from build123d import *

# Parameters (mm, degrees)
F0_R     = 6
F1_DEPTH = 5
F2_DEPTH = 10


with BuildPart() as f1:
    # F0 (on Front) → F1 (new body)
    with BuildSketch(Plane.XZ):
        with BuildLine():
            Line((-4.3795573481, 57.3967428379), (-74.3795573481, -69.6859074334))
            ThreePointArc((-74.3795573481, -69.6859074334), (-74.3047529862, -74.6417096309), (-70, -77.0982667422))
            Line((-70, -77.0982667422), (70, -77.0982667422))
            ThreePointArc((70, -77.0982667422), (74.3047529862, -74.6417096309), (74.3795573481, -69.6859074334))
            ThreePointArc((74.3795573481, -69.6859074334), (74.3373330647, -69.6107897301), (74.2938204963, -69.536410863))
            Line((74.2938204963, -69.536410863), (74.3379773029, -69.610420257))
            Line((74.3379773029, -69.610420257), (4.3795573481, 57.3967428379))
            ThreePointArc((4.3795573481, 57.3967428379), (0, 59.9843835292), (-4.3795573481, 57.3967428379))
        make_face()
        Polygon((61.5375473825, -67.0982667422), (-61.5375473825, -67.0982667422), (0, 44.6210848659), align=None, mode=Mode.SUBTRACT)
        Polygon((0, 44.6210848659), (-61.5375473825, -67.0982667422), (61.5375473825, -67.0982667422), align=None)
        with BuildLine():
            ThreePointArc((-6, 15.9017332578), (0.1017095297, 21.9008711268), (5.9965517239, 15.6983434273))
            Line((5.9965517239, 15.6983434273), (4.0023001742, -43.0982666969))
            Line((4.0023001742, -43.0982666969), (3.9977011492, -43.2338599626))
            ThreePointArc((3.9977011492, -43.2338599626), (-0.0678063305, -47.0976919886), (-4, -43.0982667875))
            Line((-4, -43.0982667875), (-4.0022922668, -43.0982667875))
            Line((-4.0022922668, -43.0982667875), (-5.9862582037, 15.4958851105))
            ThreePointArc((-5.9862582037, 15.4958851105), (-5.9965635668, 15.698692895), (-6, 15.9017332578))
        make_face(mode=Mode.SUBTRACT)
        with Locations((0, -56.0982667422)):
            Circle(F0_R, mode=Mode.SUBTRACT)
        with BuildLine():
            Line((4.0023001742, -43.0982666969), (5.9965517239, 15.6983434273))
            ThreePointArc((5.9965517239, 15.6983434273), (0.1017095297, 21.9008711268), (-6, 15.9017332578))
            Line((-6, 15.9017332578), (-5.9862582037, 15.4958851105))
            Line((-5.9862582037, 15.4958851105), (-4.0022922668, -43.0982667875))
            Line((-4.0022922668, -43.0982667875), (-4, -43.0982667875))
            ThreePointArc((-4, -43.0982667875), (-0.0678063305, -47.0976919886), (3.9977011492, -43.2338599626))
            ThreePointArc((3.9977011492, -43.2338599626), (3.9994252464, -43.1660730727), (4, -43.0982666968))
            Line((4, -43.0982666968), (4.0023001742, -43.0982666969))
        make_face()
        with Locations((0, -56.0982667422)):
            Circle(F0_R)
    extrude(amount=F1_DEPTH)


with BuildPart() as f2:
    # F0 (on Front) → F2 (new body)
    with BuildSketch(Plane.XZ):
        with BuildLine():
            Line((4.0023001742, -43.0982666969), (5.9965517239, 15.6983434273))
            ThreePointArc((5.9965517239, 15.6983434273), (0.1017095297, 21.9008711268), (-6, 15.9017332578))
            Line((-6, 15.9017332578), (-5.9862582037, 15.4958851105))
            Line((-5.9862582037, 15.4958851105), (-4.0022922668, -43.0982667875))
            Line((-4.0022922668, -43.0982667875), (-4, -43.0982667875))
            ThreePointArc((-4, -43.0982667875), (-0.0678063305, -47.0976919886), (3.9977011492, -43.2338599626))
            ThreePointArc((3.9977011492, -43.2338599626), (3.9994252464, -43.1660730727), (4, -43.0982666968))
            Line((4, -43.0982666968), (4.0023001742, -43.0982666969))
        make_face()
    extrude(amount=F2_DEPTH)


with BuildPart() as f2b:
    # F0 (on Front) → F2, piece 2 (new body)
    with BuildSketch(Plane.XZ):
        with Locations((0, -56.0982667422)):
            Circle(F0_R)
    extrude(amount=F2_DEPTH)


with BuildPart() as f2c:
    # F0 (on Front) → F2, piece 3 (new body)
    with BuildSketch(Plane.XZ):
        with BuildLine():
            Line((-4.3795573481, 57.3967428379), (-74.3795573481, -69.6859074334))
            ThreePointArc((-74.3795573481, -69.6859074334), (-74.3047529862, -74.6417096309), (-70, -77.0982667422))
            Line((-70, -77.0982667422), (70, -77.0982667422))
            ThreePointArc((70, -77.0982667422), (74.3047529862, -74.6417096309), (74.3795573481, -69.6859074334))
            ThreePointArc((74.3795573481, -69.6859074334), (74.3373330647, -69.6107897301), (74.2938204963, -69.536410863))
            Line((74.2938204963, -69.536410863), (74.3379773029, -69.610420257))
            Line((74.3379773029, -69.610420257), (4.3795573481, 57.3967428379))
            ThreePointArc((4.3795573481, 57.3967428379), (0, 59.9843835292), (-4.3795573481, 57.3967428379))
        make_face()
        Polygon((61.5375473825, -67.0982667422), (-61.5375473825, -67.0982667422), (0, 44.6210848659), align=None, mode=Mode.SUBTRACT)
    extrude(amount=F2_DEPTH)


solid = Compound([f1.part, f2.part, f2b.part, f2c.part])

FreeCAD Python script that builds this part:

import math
import FreeCAD as App
import Part
import Sketcher

V = App.Vector
Q = App.Units.Quantity


def add_polygon(sketch, points):
    """Adds a closed chain of lines whose ends are joined by coincident constraints."""
    first, n = sketch.GeometryCount, len(points)
    for a, b in zip(points, points[1:] + points[:1]):
        sketch.addGeometry(Part.LineSegment(App.Vector(*a, 0), App.Vector(*b, 0)), False)
    for i in range(n):
        sketch.addConstraint(Sketcher.Constraint("Coincident", first + i, 2, first + (i + 1) % n, 1))

doc = App.newDocument("Part")
body = doc.addObject("PartDesign::Body", "Body")

# Sketch on XZ plane
sketch1 = body.newObject("Sketcher::SketchObject", "Sketch")
sketch1.AttachmentSupport = (doc.getObject("XZ_Plane"), [""])
sketch1.MapMode = "FlatFace"
sketch1.addGeometry([
    Part.LineSegment(V(-4.379557, 57.396743, 0), V(-74.379557, -69.685907, 0)),  # 0
    Part.ArcOfCircle(Part.Circle(V(-70, -72.098267, 0), V(0, 0, 1), 5), math.radians(151.153032), math.radians(270)),  # 1
    Part.LineSegment(V(-70, -77.098267, 0), V(70, -77.098267, 0)),  # 2
    Part.ArcOfCircle(Part.Circle(V(70, -72.098267, 0), V(0, 0, 1), 5), math.radians(-90), math.radians(28.846968)),  # 3
    Part.ArcOfCircle(Part.Circle(V(70, -72.098267, 0), V(0, 0, 1), 5), math.radians(28.846968), math.radians(30.821902)),  # 4
    Part.LineSegment(V(74.29382, -69.536411, 0), V(74.337977, -69.61042, 0)),  # 5
    Part.LineSegment(V(74.337977, -69.61042, 0), V(4.379557, 57.396743, 0)),  # 6
    Part.ArcOfCircle(Part.Circle(V(0, 54.984384, 0), V(0, 0, 1), 5), math.radians(28.846968), math.radians(151.153032)),  # 7
    Part.ArcOfCircle(Part.Circle(V(0, 15.901733, 0), V(0, 0, 1), 6), math.radians(-180), math.radians(-176.121474)),  # 8
    Part.LineSegment(V(-6, 15.901733, 0), V(-5.986258, 15.495885, 0)),  # 9
    Part.LineSegment(V(4.0023, -43.098267, 0), V(3.997701, -43.23386, 0)),  # 10
    Part.ArcOfCircle(Part.Circle(V(0, -43.098267, 0), V(0, 0, 1), 4), math.radians(-1.942602), math.radians(0.000001)),  # 11
    Part.LineSegment(V(4, -43.098267, 0), V(4.0023, -43.098267, 0)),  # 12
], False)
sketch1.addConstraint([
    Sketcher.Constraint("Tangent", 0, 2, 1, 1),
    Sketcher.Constraint("Tangent", 1, 2, 2, 1),
    Sketcher.Constraint("Tangent", 2, 2, 3, 1),
    Sketcher.Constraint("Tangent", 3, 2, 4, 1),
    Sketcher.Constraint("Tangent", 4, 2, 5, 1),
    Sketcher.Constraint("Coincident", 5, 2, 6, 1),
    Sketcher.Constraint("Tangent", 6, 2, 7, 1),
    Sketcher.Constraint("Tangent", 7, 2, 0, 1),
    Sketcher.Constraint("Coincident", 8, 1, 9, 1),
    Sketcher.Constraint("Coincident", 9, 2, 8, 2),
    Sketcher.Constraint("Tangent", 10, 2, 11, 1),
    Sketcher.Constraint("Coincident", 11, 2, 12, 1),
    Sketcher.Constraint("Coincident", 12, 2, 10, 1),
    Sketcher.Constraint("Horizontal", 2),
    Sketcher.Constraint("Horizontal", 12),
    Sketcher.Constraint("Equal", 1, 3),
    Sketcher.Constraint("Equal", 3, 4),
    Sketcher.Constraint("Equal", 4, 7),
    Sketcher.Constraint("Symmetric", 0, 2, 3, 2, -2),
    Sketcher.Constraint("PointOnObject", 7, 3, -2),
    Sketcher.Constraint("PointOnObject", 8, 3, -2),
    Sketcher.Constraint("PointOnObject", 11, 3, -2),
    Sketcher.Constraint("Radius", 1, Q("5 mm")),
    Sketcher.Constraint("Radius", 8, Q("6 mm")),
    Sketcher.Constraint("Radius", 11, Q("4 mm")),
    Sketcher.Constraint("DistanceX", 2, 1, 2, 2, Q("140 mm")),
    Sketcher.Constraint("Distance", 6, Q("145 mm")),
    Sketcher.Constraint("DistanceY", 4, 3, 8, 3, Q("88 mm")),
    Sketcher.Constraint("DistanceY", 11, 3, 8, 3, Q("59 mm")),
    Sketcher.Constraint("DistanceY", 11, 3, 8, 1, Q("59 mm")),
    Sketcher.Constraint("DistanceY", 11, 2, 8, 3, Q("59 mm")),
    Sketcher.Constraint("DistanceX", 12, 1, 12, 2, Q("0.0023 mm")),
    Sketcher.Constraint("DistanceY", 9, 2, 7, 3, Q("39.488498 mm")),
    Sketcher.Constraint("DistanceX", 9, 2, 7, 2, Q("1.606701 mm")),
    Sketcher.Constraint("Distance", 5, Q("0.086181 mm")),
    Sketcher.Constraint("DistanceY", 4, 2, -1, 1, Q("69.536411 mm")),
])
pad1 = body.newObject("PartDesign::Pad", "Pad")
pad1.Profile = sketch1
pad1.Length = 5
body2 = doc.addObject("PartDesign::Body", "Body001")

# Sketch on XZ plane
sketch2 = body2.newObject("Sketcher::SketchObject", "Sketch001")
sketch2.AttachmentSupport = (doc.getObject("XZ_Plane001"), [""])
sketch2.MapMode = "FlatFace"
sketch2.addGeometry([
    Part.LineSegment(V(4.0023, -43.098267, 0), V(5.996552, 15.698343, 0)),  # 0
    Part.ArcOfCircle(Part.Circle(V(0, 15.901733, 0), V(0, 0, 1), 6), math.radians(-1.942602), math.radians(180)),  # 1
    Part.LineSegment(V(-6, 15.901733, 0), V(-5.986258, 15.495885, 0)),  # 2
    Part.LineSegment(V(-5.986258, 15.495885, 0), V(-4.002292, -43.098267, 0)),  # 3
    Part.LineSegment(V(-4.002292, -43.098267, 0), V(-4, -43.098267, 0)),  # 4
    Part.ArcOfCircle(Part.Circle(V(0, -43.098267, 0), V(0, 0, 1), 4), math.radians(-179.999999), math.radians(-1.942602)),  # 5
    Part.ArcOfCircle(Part.Circle(V(0, -43.098267, 0), V(0, 0, 1), 4), math.radians(-1.942602), math.radians(0.000001)),  # 6
    Part.LineSegment(V(4, -43.098267, 0), V(4.0023, -43.098267, 0)),  # 7
], False)
sketch2.addConstraint([
    Sketcher.Constraint("Tangent", 0, 2, 1, 1),
    Sketcher.Constraint("Coincident", 1, 2, 2, 1),
    Sketcher.Constraint("Coincident", 2, 2, 3, 1),
    Sketcher.Constraint("Coincident", 3, 2, 4, 1),
    Sketcher.Constraint("Coincident", 4, 2, 5, 1),
    Sketcher.Constraint("Tangent", 5, 2, 6, 1),
    Sketcher.Constraint("Coincident", 6, 2, 7, 1),
    Sketcher.Constraint("Coincident", 7, 2, 0, 1),
    Sketcher.Constraint("Horizontal", 4),
    Sketcher.Constraint("Horizontal", 7),
    Sketcher.Constraint("Equal", 5, 6),
    Sketcher.Constraint("Symmetric", 4, 2, 6, 2, -2),
    Sketcher.Constraint("PointOnObject", 1, 3, -2),
    Sketcher.Constraint("Parallel", 2, 3),
    Sketcher.Constraint("Horizontal", 6, 3, 3, 2),
    Sketcher.Constraint("Radius", 1, Q("6 mm")),
    Sketcher.Constraint("Radius", 5, Q("4 mm")),
    Sketcher.Constraint("DistanceY", 5, 3, 1, 3, Q("59 mm")),
    Sketcher.Constraint("DistanceY", 5, 3, 1, 2, Q("59 mm")),
    Sketcher.Constraint("DistanceX", 7, 1, 7, 2, Q("0.0023 mm")),
    Sketcher.Constraint("DistanceX", -1, 1, 5, 2, Q("3.997701 mm")),
    Sketcher.Constraint("Distance", 2, Q("0.406081 mm")),
    Sketcher.Constraint("Distance", 3, Q("58.62773 mm")),
    Sketcher.Constraint("DistanceY", 5, 2, -1, 1, Q("43.23386 mm")),
])
pad2 = body2.newObject("PartDesign::Pad", "Pad001")
pad2.Profile = sketch2
pad2.Length = 10
body3 = doc.addObject("PartDesign::Body", "Body002")

# Sketch on XZ plane
sketch3 = body3.newObject("Sketcher::SketchObject", "Sketch002")
sketch3.AttachmentSupport = (doc.getObject("XZ_Plane002"), [""])
sketch3.MapMode = "FlatFace"
sketch3.addGeometry(Part.Circle(V(0, -56.098267, 0), V(0, 0, 1), 6), False)
sketch3.addConstraint([
    Sketcher.Constraint("PointOnObject", 0, 3, -2),
    Sketcher.Constraint("Diameter", 0, Q("12 mm")),
    Sketcher.Constraint("DistanceY", 0, 3, -1, 1, Q("56.098267 mm")),
])
pad3 = body3.newObject("PartDesign::Pad", "Pad002")
pad3.Profile = sketch3
pad3.Length = 10
body4 = doc.addObject("PartDesign::Body", "Body003")

# Sketch on XZ plane
sketch4 = body4.newObject("Sketcher::SketchObject", "Sketch003")
sketch4.AttachmentSupport = (doc.getObject("XZ_Plane003"), [""])
sketch4.MapMode = "FlatFace"
sketch4.addGeometry(Part.LineSegment(V(-4.379557, 57.396743, 0), V(-74.379557, -69.685907, 0)), False)  # 0
sketch4.addGeometry(Part.ArcOfCircle(Part.Circle(V(-70, -72.098267, 0), V(0, 0, 1), 5), math.radians(151.153032), math.radians(270)), False)  # 1
sketch4.addGeometry(Part.LineSegment(V(-70, -77.098267, 0), V(70, -77.098267, 0)), False)  # 2
sketch4.addGeometry(Part.ArcOfCircle(Part.Circle(V(70, -72.098267, 0), V(0, 0, 1), 5), math.radians(-90), math.radians(28.846968)), False)  # 3
sketch4.addGeometry(Part.ArcOfCircle(Part.Circle(V(70, -72.098267, 0), V(0, 0, 1), 5), math.radians(28.846968), math.radians(30.821902)), False)  # 4
sketch4.addGeometry(Part.LineSegment(V(74.29382, -69.536411, 0), V(74.337977, -69.61042, 0)), False)  # 5
sketch4.addGeometry(Part.LineSegment(V(74.337977, -69.61042, 0), V(4.379557, 57.396743, 0)), False)  # 6
sketch4.addGeometry(Part.ArcOfCircle(Part.Circle(V(0, 54.984384, 0), V(0, 0, 1), 5), math.radians(28.846968), math.radians(151.153032)), False)  # 7
add_polygon(sketch4, [(0, 44.621085), (61.537547, -67.098267), (-61.537547, -67.098267)])  # lines 8-10
sketch4.addConstraint([
    Sketcher.Constraint("Tangent", 0, 2, 1, 1),
    Sketcher.Constraint("Tangent", 1, 2, 2, 1),
    Sketcher.Constraint("Tangent", 2, 2, 3, 1),
    Sketcher.Constraint("Tangent", 3, 2, 4, 1),
    Sketcher.Constraint("Tangent", 4, 2, 5, 1),
    Sketcher.Constraint("Coincident", 5, 2, 6, 1),
    Sketcher.Constraint("Tangent", 6, 2, 7, 1),
    Sketcher.Constraint("Tangent", 7, 2, 0, 1),
    Sketcher.Constraint("Horizontal", 2),
    Sketcher.Constraint("Horizontal", 9),
    Sketcher.Constraint("Equal", 1, 3),
    Sketcher.Constraint("Equal", 3, 4),
    Sketcher.Constraint("Equal", 4, 7),
    Sketcher.Constraint("Symmetric", 0, 2, 3, 2, -2),
    Sketcher.Constraint("PointOnObject", 7, 3, -2),
    Sketcher.Constraint("PointOnObject", 10, 2, -2),
    Sketcher.Constraint("Parallel", 6, 8),
    Sketcher.Constraint("Parallel", 0, 10),
    Sketcher.Constraint("Equal", 8, 10),
    Sketcher.Constraint("Radius", 1, Q("5 mm")),
    Sketcher.Constraint("DistanceX", 2, 1, 2, 2, Q("140 mm")),
    Sketcher.Constraint("Distance", 6, Q("145 mm")),
    Sketcher.Constraint("DistanceY", 4, 3, 8, 2, Q("5 mm")),
    Sketcher.Constraint("DistanceY", 10, 2, 7, 3, Q("10.363299 mm")),
    Sketcher.Constraint("Distance", 0, Q("145.086181 mm")),
    Sketcher.Constraint("DistanceY", 4, 2, -1, 1, Q("69.536411 mm")),
])
pad4 = body4.newObject("PartDesign::Pad", "Pad003")
pad4.Profile = sketch4
pad4.Length = 10

doc.recompute()
